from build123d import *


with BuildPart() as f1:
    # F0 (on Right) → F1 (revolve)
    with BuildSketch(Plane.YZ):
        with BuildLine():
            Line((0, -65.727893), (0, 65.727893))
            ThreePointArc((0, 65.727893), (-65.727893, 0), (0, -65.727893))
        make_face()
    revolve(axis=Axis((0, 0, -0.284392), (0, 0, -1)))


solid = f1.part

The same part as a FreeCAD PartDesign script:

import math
import FreeCAD as App
import Part
import Sketcher
from FreeCAD import Vector

doc = App.newDocument("Part")
body = doc.addObject("PartDesign::Body", "Body")

# Sketch on YZ plane
sketch1 = body.newObject("Sketcher::SketchObject", "Sketch")
sketch1.AttachmentSupport = (doc.getObject("YZ_Plane"), [""])
sketch1.MapMode = "FlatFace"
sketch1.addGeometry([
    Part.LineSegment(Vector(0, -66, 0), Vector(0, 66, 0)),
    Part.ArcOfCircle(Part.Circle(Vector(0, 0, 0), Vector(0, 0, 1), 66), math.radians(90), math.radians(270)),
], False)
sketch1.addConstraint([
    Sketcher.Constraint("Coincident", 0, 1, 1, 2),
    Sketcher.Constraint("Coincident", 1, 1, 0, 2),
    Sketcher.Constraint("Vertical", 0),
    Sketcher.Constraint("Coincident", 1, 3, -1, 1),
    Sketcher.Constraint("PointOnObject", 0, 1, -2),
    Sketcher.Constraint("Radius", 1, 65.727893),
])
revolution = body.newObject("PartDesign::Revolution", "Revolution")
revolution.Profile = sketch1
revolution.ReferenceAxis = (sketch1, ["V_Axis"])
revolution.Angle = 360

doc.recompute()
